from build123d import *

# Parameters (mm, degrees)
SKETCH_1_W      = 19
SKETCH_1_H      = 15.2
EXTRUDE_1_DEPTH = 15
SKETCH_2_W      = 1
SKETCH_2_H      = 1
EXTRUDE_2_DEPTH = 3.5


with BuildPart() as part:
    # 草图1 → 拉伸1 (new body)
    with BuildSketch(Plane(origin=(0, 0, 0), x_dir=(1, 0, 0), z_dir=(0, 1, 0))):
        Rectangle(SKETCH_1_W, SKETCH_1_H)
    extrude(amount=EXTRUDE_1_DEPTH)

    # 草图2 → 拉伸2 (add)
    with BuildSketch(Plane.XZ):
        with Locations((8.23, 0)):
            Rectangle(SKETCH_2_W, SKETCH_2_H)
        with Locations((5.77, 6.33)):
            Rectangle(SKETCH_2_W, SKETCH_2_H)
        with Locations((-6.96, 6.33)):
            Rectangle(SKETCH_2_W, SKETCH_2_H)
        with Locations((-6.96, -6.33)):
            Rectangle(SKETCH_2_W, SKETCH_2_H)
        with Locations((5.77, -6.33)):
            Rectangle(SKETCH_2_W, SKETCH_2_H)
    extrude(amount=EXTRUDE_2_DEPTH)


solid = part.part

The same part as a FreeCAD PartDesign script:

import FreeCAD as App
import Part
import Sketcher

V = App.Vector

doc = App.newDocument("Part")
body = doc.addObject("PartDesign::Body", "Body")

# Sketch on XZ plane
sketch1 = body.newObject("Sketcher::SketchObject", "Sketch")
sketch1.AttachmentSupport = (doc.getObject("XZ_Plane"), [""])
sketch1.MapMode = "FlatFace"
sketch1.addGeometry([
    Part.LineSegment(V(-9.5, -7.6, 0), V(-9.5, 7.6, 0)),
    Part.LineSegment(V(-9.5, 7.6, 0), V(9.5, 7.6, 0)),
    Part.LineSegment(V(9.5, 7.6, 0), V(9.5, -7.6, 0)),
    Part.LineSegment(V(9.5, -7.6, 0), V(-9.5, -7.6, 0)),
], False)
sketch1.addConstraint([
    Sketcher.Constraint("Coincident", 0, 2, 1, 1),
    Sketcher.Constraint("Coincident", 1, 2, 2, 1),
    Sketcher.Constraint("Coincident", 2, 2, 3, 1),
    Sketcher.Constraint("Coincident", 3, 2, 0, 1),
    Sketcher.Constraint("Vertical", 0),
    Sketcher.Constraint("Horizontal", 1),
    Sketcher.Constraint("Vertical", 2),
    Sketcher.Constraint("Horizontal", 3),
    Sketcher.Constraint("Symmetric", 0, 2, 2, 2, -1, 1),
    Sketcher.Constraint("DistanceX", 1, 1, 1, 2, 19.0),
    Sketcher.Constraint("DistanceY", 0, 1, 0, 2, 15.2),
])
pad1 = body.newObject("PartDesign::Pad", "Pad")
pad1.Profile = sketch1
pad1.Length = 15
pad1.Reversed = True

# Sketch on XZ plane
sketch2 = body.newObject("Sketcher::SketchObject", "Sketch001")
sketch2.AttachmentSupport = (doc.getObject("XZ_Plane"), [""])
sketch2.MapMode = "FlatFace"
sketch2.addGeometry([
    Part.LineSegment(V(7.73, 0.5, 0), V(7.73, -0.5, 0)),  # 0
    Part.LineSegment(V(7.73, -0.5, 0), V(8.73, -0.5, 0)),  # 1
    Part.LineSegment(V(8.73, -0.5, 0), V(8.73, 0.5, 0)),  # 2
    Part.LineSegment(V(8.73, 0.5, 0), V(7.73, 0.5, 0)),  # 3
    Part.LineSegment(V(5.27, 6.83, 0), V(5.27, 5.83, 0)),  # 4
    Part.LineSegment(V(5.27, 5.83, 0), V(6.27, 5.83, 0)),  # 5
    Part.LineSegment(V(6.27, 5.83, 0), V(6.27, 6.83, 0)),  # 6
    Part.LineSegment(V(6.27, 6.83, 0), V(5.27, 6.83, 0)),  # 7
    Part.LineSegment(V(-7.46, 6.83, 0), V(-7.46, 5.83, 0)),  # 8
    Part.LineSegment(V(-7.46, 5.83, 0), V(-6.46, 5.83, 0)),  # 9
    Part.LineSegment(V(-6.46, 5.83, 0), V(-6.46, 6.83, 0)),  # 10
    Part.LineSegment(V(-6.46, 6.83, 0), V(-7.46, 6.83, 0)),  # 11
    Part.LineSegment(V(-7.46, -5.83, 0), V(-7.46, -6.83, 0)),  # 12
    Part.LineSegment(V(-7.46, -6.83, 0), V(-6.46, -6.83, 0)),  # 13
    Part.LineSegment(V(-6.46, -6.83, 0), V(-6.46, -5.83, 0)),  # 14
    Part.LineSegment(V(-6.46, -5.83, 0), V(-7.46, -5.83, 0)),  # 15
    Part.LineSegment(V(5.27, -5.83, 0), V(5.27, -6.83, 0)),  # 16
    Part.LineSegment(V(5.27, -6.83, 0), V(6.27, -6.83, 0)),  # 17
    Part.LineSegment(V(6.27, -6.83, 0), V(6.27, -5.83, 0)),  # 18
    Part.LineSegment(V(6.27, -5.83, 0), V(5.27, -5.83, 0)),  # 19
], False)
sketch2.addConstraint([
    Sketcher.Constraint("Coincident", 0, 2, 1, 1),
    Sketcher.Constraint("Coincident", 1, 2, 2, 1),
    Sketcher.Constraint("Coincident", 2, 2, 3, 1),
    Sketcher.Constraint("Coincident", 3, 2, 0, 1),
    Sketcher.Constraint("Coincident", 4, 2, 5, 1),
    Sketcher.Constraint("Coincident", 5, 2, 6, 1),
    Sketcher.Constraint("Coincident", 6, 2, 7, 1),
    Sketcher.Constraint("Coincident", 7, 2, 4, 1),
    Sketcher.Constraint("Coincident", 8, 2, 9, 1),
    Sketcher.Constraint("Coincident", 9, 2, 10, 1),
    Sketcher.Constraint("Coincident", 10, 2, 11, 1),
    Sketcher.Constraint("Coincident", 11, 2, 8, 1),
    Sketcher.Constraint("Coincident", 12, 2, 13, 1),
    Sketcher.Constraint("Coincident", 13, 2, 14, 1),
    Sketcher.Constraint("Coincident", 14, 2, 15, 1),
    Sketcher.Constraint("Coincident", 15, 2, 12, 1),
    Sketcher.Constraint("Coincident", 16, 2, 17, 1),
    Sketcher.Constraint("Coincident", 17, 2, 18, 1),
    Sketcher.Constraint("Coincident", 18, 2, 19, 1),
    Sketcher.Constraint("Coincident", 19, 2, 16, 1),
    Sketcher.Constraint("Vertical", 0),
    Sketcher.Constraint("Horizontal", 1),
    Sketcher.Constraint("Vertical", 2),
    Sketcher.Constraint("Horizontal", 3),
    Sketcher.Constraint("Vertical", 4),
    Sketcher.Constraint("Horizontal", 5),
    Sketcher.Constraint("Vertical", 6),
    Sketcher.Constraint("Horizontal", 7),
    Sketcher.Constraint("Vertical", 8),
    Sketcher.Constraint("Horizontal", 9),
    Sketcher.Constraint("Vertical", 10),
    Sketcher.Constraint("Horizontal", 11),
    Sketcher.Constraint("Vertical", 12),
    Sketcher.Constraint("Horizontal", 13),
    Sketcher.Constraint("Vertical", 14),
    Sketcher.Constraint("Horizontal", 15),
    Sketcher.Constraint("Vertical", 16),
    Sketcher.Constraint("Horizontal", 17),
    Sketcher.Constraint("Vertical", 18),
    Sketcher.Constraint("Horizontal", 19),
    Sketcher.Constraint("Symmetric", 11, 2, 12, 2, -1),
    Sketcher.Constraint("Symmetric", 9, 2, 14, 2, -1),
    Sketcher.Constraint("Symmetric", 7, 2, 16, 2, -1),
    Sketcher.Constraint("Symmetric", 5, 2, 18, 2, -1),
    Sketcher.Constraint("Horizontal", 5, 2, 8, 2),
    Sketcher.Constraint("Horizontal", 7, 2, 10, 2),
    Sketcher.Constraint("Equal", 3, 5),
    Sketcher.Constraint("Equal", 7, 9),
    Sketcher.Constraint("Equal", 19, 0),
    Sketcher.Constraint("Equal", 2, 4),
    Sketcher.Constraint("DistanceX", 1, 1, 1, 2, 1.0),
    Sketcher.Constraint("DistanceY", 0, 2, -1, 1, 0.5),
    Sketcher.Constraint("DistanceX", -1, 1, 0, 2, 7.73),
    Sketcher.Constraint("DistanceX", -1, 1, 4, 2, 5.27),
    Sketcher.Constraint("DistanceY", -1, 1, 4, 2, 5.83),
    Sketcher.Constraint("DistanceX", 8, 2, -1, 1, 7.46),
])
pad2 = body.newObject("PartDesign::Pad", "Pad001")
pad2.Profile = sketch2
pad2.Length = 3.5

doc.recompute()
